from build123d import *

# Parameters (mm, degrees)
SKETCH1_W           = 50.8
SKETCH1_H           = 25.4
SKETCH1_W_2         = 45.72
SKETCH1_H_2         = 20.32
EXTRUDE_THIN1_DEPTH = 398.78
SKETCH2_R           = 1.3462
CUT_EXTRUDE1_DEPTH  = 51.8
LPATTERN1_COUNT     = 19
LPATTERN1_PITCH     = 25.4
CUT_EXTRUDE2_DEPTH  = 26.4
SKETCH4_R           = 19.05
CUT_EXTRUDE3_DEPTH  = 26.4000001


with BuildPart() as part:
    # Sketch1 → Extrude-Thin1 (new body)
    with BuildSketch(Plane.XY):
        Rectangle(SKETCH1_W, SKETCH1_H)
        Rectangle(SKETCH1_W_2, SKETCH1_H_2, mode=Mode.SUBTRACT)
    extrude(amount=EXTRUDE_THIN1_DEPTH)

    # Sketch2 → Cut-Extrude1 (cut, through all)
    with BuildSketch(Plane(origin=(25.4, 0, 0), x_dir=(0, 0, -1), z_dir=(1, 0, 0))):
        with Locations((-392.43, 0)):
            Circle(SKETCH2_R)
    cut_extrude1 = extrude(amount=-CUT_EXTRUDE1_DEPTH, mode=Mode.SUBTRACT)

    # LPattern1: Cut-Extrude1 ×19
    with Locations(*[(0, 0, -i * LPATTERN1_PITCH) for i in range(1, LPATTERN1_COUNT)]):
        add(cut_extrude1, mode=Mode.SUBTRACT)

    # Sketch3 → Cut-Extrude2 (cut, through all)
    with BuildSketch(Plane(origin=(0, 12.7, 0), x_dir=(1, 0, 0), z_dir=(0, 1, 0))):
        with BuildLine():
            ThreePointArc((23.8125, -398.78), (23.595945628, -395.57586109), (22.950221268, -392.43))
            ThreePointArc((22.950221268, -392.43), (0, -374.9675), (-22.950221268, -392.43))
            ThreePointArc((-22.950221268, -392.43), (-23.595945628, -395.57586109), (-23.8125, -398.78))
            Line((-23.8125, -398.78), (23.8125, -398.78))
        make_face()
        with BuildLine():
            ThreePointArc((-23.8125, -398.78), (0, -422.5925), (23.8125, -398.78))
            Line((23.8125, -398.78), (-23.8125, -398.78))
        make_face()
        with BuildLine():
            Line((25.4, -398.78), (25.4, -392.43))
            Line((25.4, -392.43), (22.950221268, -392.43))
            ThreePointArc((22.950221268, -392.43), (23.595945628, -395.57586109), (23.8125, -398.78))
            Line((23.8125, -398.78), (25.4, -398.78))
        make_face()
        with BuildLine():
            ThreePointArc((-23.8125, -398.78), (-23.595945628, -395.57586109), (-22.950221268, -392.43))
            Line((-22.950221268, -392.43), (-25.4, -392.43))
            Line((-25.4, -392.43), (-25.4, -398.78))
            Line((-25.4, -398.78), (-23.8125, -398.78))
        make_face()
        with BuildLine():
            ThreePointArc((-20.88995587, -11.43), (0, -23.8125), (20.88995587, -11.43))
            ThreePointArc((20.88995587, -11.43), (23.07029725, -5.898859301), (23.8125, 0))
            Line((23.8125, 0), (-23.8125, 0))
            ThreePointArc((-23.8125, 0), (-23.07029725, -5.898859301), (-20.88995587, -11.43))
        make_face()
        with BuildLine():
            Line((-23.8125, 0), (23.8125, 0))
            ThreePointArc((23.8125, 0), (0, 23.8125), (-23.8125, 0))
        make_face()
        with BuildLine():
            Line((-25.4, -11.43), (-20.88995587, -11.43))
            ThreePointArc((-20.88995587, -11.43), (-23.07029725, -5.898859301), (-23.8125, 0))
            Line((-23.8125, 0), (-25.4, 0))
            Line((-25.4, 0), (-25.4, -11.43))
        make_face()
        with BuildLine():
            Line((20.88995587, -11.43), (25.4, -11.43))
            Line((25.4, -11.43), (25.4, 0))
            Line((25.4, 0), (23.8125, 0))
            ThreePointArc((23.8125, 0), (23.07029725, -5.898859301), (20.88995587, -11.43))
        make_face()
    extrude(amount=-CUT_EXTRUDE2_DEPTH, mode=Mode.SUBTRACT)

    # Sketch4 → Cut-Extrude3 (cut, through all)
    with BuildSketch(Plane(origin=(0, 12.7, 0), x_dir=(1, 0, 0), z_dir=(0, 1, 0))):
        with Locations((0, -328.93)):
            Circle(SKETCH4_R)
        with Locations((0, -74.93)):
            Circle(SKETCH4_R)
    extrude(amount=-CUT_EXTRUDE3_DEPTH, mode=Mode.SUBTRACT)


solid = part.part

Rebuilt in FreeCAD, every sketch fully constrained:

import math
import FreeCAD as App
import Part
import Sketcher
Q = App.Units.Quantity

doc = App.newDocument("Part")
body = doc.addObject("PartDesign::Body", "Body")

# Sketch on XY plane
sketch1 = body.newObject("Sketcher::SketchObject", "Sketch")
sketch1.AttachmentSupport = (doc.getObject("XY_Plane"), [""])
sketch1.MapMode = "FlatFace"
sketch1.addGeometry([
    Part.LineSegment(App.Vector(-25, 13, 0), App.Vector(-25, -13, 0)),  # 0
    Part.LineSegment(App.Vector(-25, -13, 0), App.Vector(25, -13, 0)),  # 1
    Part.LineSegment(App.Vector(25, -13, 0), App.Vector(25, 13, 0)),  # 2
    Part.LineSegment(App.Vector(25, 13, 0), App.Vector(-25, 13, 0)),  # 3
    Part.LineSegment(App.Vector(23, -10, 0), App.Vector(-23, -10, 0)),  # 4
    Part.LineSegment(App.Vector(-23, -10, 0), App.Vector(-23, 10, 0)),  # 5
    Part.LineSegment(App.Vector(-23, 10, 0), App.Vector(23, 10, 0)),  # 6
    Part.LineSegment(App.Vector(23, 10, 0), App.Vector(23, -10, 0)),  # 7
], False)
sketch1.addConstraint([
    Sketcher.Constraint("Coincident", 0, 2, 1, 1),
    Sketcher.Constraint("Coincident", 1, 2, 2, 1),
    Sketcher.Constraint("Coincident", 2, 2, 3, 1),
    Sketcher.Constraint("Coincident", 3, 2, 0, 1),
    Sketcher.Constraint("Coincident", 4, 2, 5, 1),
    Sketcher.Constraint("Coincident", 5, 2, 6, 1),
    Sketcher.Constraint("Coincident", 6, 2, 7, 1),
    Sketcher.Constraint("Coincident", 7, 2, 4, 1),
    Sketcher.Constraint("Vertical", 0),
    Sketcher.Constraint("Horizontal", 1),
    Sketcher.Constraint("Vertical", 2),
    Sketcher.Constraint("Horizontal", 3),
    Sketcher.Constraint("Horizontal", 4),
    Sketcher.Constraint("Vertical", 5),
    Sketcher.Constraint("Horizontal", 6),
    Sketcher.Constraint("Vertical", 7),
    Sketcher.Constraint("Symmetric", 0, 2, 2, 2, -1, 1),
    Sketcher.Constraint("Symmetric", 4, 2, 6, 2, -1, 1),
    Sketcher.Constraint("DistanceX", 1, 1, 1, 2, Q("2 in")),
    Sketcher.Constraint("DistanceY", 0, 2, 0, 1, Q("1 in")),
    Sketcher.Constraint("DistanceX", 4, 2, 4, 1, Q("1.8 in")),
    Sketcher.Constraint("DistanceY", 5, 1, 5, 2, Q("0.8 in")),
])
pad1 = body.newObject("PartDesign::Pad", "Pad")
pad1.Profile = sketch1
pad1.Length = Q("15.7 in")

# Sketch on YZ plane
sketch2 = body.newObject("Sketcher::SketchObject", "Sketch001")
sketch2.AttachmentSupport = (doc.getObject("YZ_Plane"), [""])
sketch2.MapMode = "FlatFace"
sketch2.AttachmentOffset = App.Placement(App.Vector(0, 0, 1 * 25.4), App.Rotation())
sketch2.addGeometry(Part.Circle(App.Vector(0, 392.4, 0), App.Vector(0, 0, 1), 1.3), False)
sketch2.addConstraint([
    Sketcher.Constraint("PointOnObject", 0, 3, -2),
    Sketcher.Constraint("Diameter", 0, Q("0.106 in")),
    Sketcher.Constraint("DistanceY", -1, 1, 0, 3, Q("15.45 in")),
])
pocket1 = body.newObject("PartDesign::Pocket", "Pocket")
pocket1.Profile = sketch2
pocket1.Type = "ThroughAll"
doc.recompute()

linearpattern = body.newObject("PartDesign::LinearPattern", "LinearPattern")
linearpattern.Originals = [pocket1]
linearpattern.Direction = (doc.getObject("Z_Axis"), [""])
linearpattern.Mode = "offset"
linearpattern.Offset = Q("1 in")
linearpattern.Occurrences = 19
linearpattern.Reversed = True
body.Tip = linearpattern

# Sketch on XZ plane
sketch3 = body.newObject("Sketcher::SketchObject", "Sketch002")
sketch3.AttachmentSupport = (doc.getObject("XZ_Plane"), [""])
sketch3.MapMode = "FlatFace"
sketch3.AttachmentOffset = App.Placement(App.Vector(0, 0, -0.5 * 25.4), App.Rotation())
sketch3.addGeometry([
    Part.ArcOfCircle(Part.Circle(App.Vector(0, 398.8, 0), App.Vector(0, 0, 1), 23.8), math.radians(-165), math.radians(-15)),  # 0
    Part.LineSegment(App.Vector(-23, 392.4, 0), App.Vector(-25.4, 392.4, 0)),  # 1
    Part.LineSegment(App.Vector(-25.4, 392.4, 0), App.Vector(-25.4, 398.8, 0)),  # 2
    Part.LineSegment(App.Vector(-25.4, 398.8, 0), App.Vector(-23.8, 398.8, 0)),  # 3
    Part.ArcOfCircle(Part.Circle(App.Vector(0, 398.8, 0), App.Vector(0, 0, 1), 23.8), math.radians(0), math.radians(180)),  # 4
    Part.LineSegment(App.Vector(23.8, 398.8, 0), App.Vector(25.4, 398.8, 0)),  # 5
    Part.LineSegment(App.Vector(25.4, 398.8, 0), App.Vector(25.4, 392.4, 0)),  # 6
    Part.LineSegment(App.Vector(25.4, 392.4, 0), App.Vector(23, 392.4, 0)),  # 7
    Part.ArcOfCircle(Part.Circle(App.Vector(0, 0, 0), App.Vector(0, 0, 1), 23.8), math.radians(29), math.radians(151)),  # 8
    Part.LineSegment(App.Vector(20.9, 11.4, 0), App.Vector(25.4, 11.4, 0)),  # 9
    Part.LineSegment(App.Vector(25.4, 11.4, 0), App.Vector(25.4, 0, 0)),  # 10
    Part.LineSegment(App.Vector(25.4, 0, 0), App.Vector(23.8, 0, 0)),  # 11
    Part.ArcOfCircle(Part.Circle(App.Vector(0, 0, 0), App.Vector(0, 0, 1), 23.8), math.radians(180), math.radians(360)),  # 12
    Part.LineSegment(App.Vector(-23.8, 0, 0), App.Vector(-25.4, 0, 0)),  # 13
    Part.LineSegment(App.Vector(-25.4, 0, 0), App.Vector(-25.4, 11.4, 0)),  # 14
    Part.LineSegment(App.Vector(-25.4, 11.4, 0), App.Vector(-20.9, 11.4, 0)),  # 15
], False)
sketch3.addConstraint([
    Sketcher.Constraint("Coincident", 0, 1, 1, 1),
    Sketcher.Constraint("Coincident", 1, 2, 2, 1),
    Sketcher.Constraint("Coincident", 2, 2, 3, 1),
    Sketcher.Constraint("Coincident", 3, 2, 4, 2),
    Sketcher.Constraint("Coincident", 4, 1, 5, 1),
    Sketcher.Constraint("Coincident", 5, 2, 6, 1),
    Sketcher.Constraint("Coincident", 6, 2, 7, 1),
    Sketcher.Constraint("Coincident", 7, 2, 0, 2),
    Sketcher.Constraint("Coincident", 8, 1, 9, 1),
    Sketcher.Constraint("Coincident", 9, 2, 10, 1),
    Sketcher.Constraint("Coincident", 10, 2, 11, 1),
    Sketcher.Constraint("Coincident", 11, 2, 12, 2),
    Sketcher.Constraint("Coincident", 12, 1, 13, 1),
    Sketcher.Constraint("Coincident", 13, 2, 14, 1),
    Sketcher.Constraint("Coincident", 14, 2, 15, 1),
    Sketcher.Constraint("Coincident", 15, 2, 8, 2),
    Sketcher.Constraint("Horizontal", 1),
    Sketcher.Constraint("Vertical", 2),
    Sketcher.Constraint("Horizontal", 3),
    Sketcher.Constraint("Horizontal", 5),
    Sketcher.Constraint("Vertical", 6),
    Sketcher.Constraint("Horizontal", 7),
    Sketcher.Constraint("Horizontal", 9),
    Sketcher.Constraint("Vertical", 10),
    Sketcher.Constraint("Horizontal", 11),
    Sketcher.Constraint("Horizontal", 13),
    Sketcher.Constraint("Vertical", 14),
    Sketcher.Constraint("Horizontal", 15),
    Sketcher.Constraint("Coincident", 8, 3, -1, 1),
    Sketcher.Constraint("Coincident", 12, 3, -1, 1),
    Sketcher.Constraint("Coincident", 4, 3, 0, 3),
    Sketcher.Constraint("Equal", 0, 4),
    Sketcher.Constraint("Equal", 4, 8),
    Sketcher.Constraint("Equal", 8, 12),
    Sketcher.Constraint("Symmetric", 10, 2, 13, 2, -1, 1),
    Sketcher.Constraint("Symmetric", 3, 2, 4, 1, -2),
    Sketcher.Constraint("Symmetric", 1, 2, 6, 2, -2),
    Sketcher.Constraint("PointOnObject", 10, 2, -1),
    Sketcher.Constraint("Horizontal", 4, 3, 2, 2),
    Sketcher.Constraint("Horizontal", 9, 2, 14, 2),
    Sketcher.Constraint("Vertical", 6, 2, 9, 2),
    Sketcher.Constraint("DistanceX", 1, 2, -1, 1, Q("1 in")),
    Sketcher.Constraint("Radius", 0, Q("0.9375 in")),
    Sketcher.Constraint("DistanceY", 8, 1, 7, 2, Q("15 in")),
    Sketcher.Constraint("DistanceY", 2, 1, 2, 2, Q("0.25 in")),
    Sketcher.Constraint("DistanceY", 10, 2, 10, 1, Q("0.45 in")),
])
pocket2 = body.newObject("PartDesign::Pocket", "Pocket001")
pocket2.Profile = sketch3
pocket2.Type = "ThroughAll"
pocket2.Reversed = True

# Sketch on XZ plane
sketch4 = body.newObject("Sketcher::SketchObject", "Sketch003")
sketch4.AttachmentSupport = (doc.getObject("XZ_Plane"), [""])
sketch4.MapMode = "FlatFace"
sketch4.AttachmentOffset = App.Placement(App.Vector(0, 0, -0.5 * 25.4), App.Rotation())
sketch4.addGeometry([
    Part.Circle(App.Vector(0, 329, 0), App.Vector(0, 0, 1), 19),
    Part.Circle(App.Vector(0, 75, 0), App.Vector(0, 0, 1), 19),
], False)
sketch4.addConstraint([
    Sketcher.Constraint("Equal", 0, 1),
    Sketcher.Constraint("PointOnObject", 0, 3, -2),
    Sketcher.Constraint("PointOnObject", 1, 3, -2),
    Sketcher.Constraint("Diameter", 0, Q("1.5 in")),
    Sketcher.Constraint("DistanceY", 1, 3, 0, 3, Q("10 in")),
    Sketcher.Constraint("DistanceY", -1, 1, 0, 3, Q("12.95 in")),
])
pocket3 = body.newObject("PartDesign::Pocket", "Pocket002")
pocket3.Profile = sketch4
pocket3.Type = "ThroughAll"
pocket3.Reversed = True

doc.recompute()
